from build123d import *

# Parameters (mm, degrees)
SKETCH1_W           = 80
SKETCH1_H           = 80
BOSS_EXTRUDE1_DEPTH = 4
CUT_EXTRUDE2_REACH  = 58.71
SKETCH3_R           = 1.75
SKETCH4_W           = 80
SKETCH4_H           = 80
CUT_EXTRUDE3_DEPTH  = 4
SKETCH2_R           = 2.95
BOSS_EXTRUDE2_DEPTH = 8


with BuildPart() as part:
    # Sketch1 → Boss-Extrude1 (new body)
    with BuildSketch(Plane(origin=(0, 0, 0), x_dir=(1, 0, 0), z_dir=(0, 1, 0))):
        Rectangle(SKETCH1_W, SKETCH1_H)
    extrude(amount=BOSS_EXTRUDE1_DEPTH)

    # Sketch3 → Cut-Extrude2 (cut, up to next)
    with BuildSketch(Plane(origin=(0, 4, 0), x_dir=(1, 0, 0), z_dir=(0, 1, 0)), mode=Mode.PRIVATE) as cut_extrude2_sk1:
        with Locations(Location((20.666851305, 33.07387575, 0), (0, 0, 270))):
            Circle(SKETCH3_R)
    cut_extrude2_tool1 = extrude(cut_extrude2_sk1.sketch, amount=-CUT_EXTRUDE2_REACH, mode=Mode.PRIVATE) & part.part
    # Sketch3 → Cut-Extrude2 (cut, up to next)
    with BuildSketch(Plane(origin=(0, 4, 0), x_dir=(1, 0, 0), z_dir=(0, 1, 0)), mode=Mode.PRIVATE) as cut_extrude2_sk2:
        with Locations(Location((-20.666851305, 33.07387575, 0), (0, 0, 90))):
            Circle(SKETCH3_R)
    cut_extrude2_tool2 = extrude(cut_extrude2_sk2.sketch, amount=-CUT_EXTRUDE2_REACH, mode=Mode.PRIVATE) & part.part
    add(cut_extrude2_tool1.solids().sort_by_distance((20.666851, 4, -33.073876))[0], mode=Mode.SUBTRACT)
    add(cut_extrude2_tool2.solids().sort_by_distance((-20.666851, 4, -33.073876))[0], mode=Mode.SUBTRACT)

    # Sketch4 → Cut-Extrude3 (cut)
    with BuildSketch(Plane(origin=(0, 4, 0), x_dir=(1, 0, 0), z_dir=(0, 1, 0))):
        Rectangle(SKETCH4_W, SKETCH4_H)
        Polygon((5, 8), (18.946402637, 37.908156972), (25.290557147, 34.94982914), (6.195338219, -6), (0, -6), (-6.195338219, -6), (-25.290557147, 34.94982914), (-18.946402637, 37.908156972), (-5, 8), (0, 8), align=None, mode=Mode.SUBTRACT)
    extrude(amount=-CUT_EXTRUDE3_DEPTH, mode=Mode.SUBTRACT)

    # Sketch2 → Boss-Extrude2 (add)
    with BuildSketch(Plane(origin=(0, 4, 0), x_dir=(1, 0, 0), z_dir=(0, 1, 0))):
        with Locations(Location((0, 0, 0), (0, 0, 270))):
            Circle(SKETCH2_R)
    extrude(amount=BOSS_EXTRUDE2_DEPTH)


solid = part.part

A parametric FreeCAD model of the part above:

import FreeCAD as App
import Part
import Sketcher
from FreeCAD import Vector
Q = App.Units.Quantity


def add_polygon(sketch, points):
    """Adds a closed chain of lines whose ends are joined by coincident constraints."""
    first, n = sketch.GeometryCount, len(points)
    for a, b in zip(points, points[1:] + points[:1]):
        sketch.addGeometry(Part.LineSegment(App.Vector(*a, 0), App.Vector(*b, 0)), False)
    for i in range(n):
        sketch.addConstraint(Sketcher.Constraint("Coincident", first + i, 2, first + (i + 1) % n, 1))

doc = App.newDocument("Part")
body = doc.addObject("PartDesign::Body", "Body")

sketch1 = body.newObject("Sketcher::SketchObject", "Sketch")
sketch1.AttachmentSupport = (doc.getObject("XZ_Plane"), [""])
sketch1.MapMode = "FlatFace"
add_polygon(sketch1, [(-40, -40), (-40, 40), (40, 40), (40, -40)])
sketch1.addConstraint(Sketcher.Constraint("Vertical", 0))
sketch1.addConstraint(Sketcher.Constraint("Horizontal", 1))
sketch1.addConstraint(Sketcher.Constraint("Vertical", 2))
sketch1.addConstraint(Sketcher.Constraint("Horizontal", 3))
sketch1.addConstraint(Sketcher.Constraint("Symmetric", 0, 2, 2, 2, -1, 1))
sketch1.addConstraint(Sketcher.Constraint("Equal", 3, 0))
sketch1.addConstraint(Sketcher.Constraint("DistanceX", 1, 1, 1, 2, 80.0))
pad1 = body.newObject("PartDesign::Pad", "Pad")
pad1.Profile = sketch1
pad1.Length = 4
pad1.Reversed = True

sketch2 = body.newObject("Sketcher::SketchObject", "Sketch001")
sketch2.AttachmentSupport = (doc.getObject("XZ_Plane"), [""])
sketch2.MapMode = "FlatFace"
sketch2.AttachmentOffset = App.Placement(Vector(0, 0, -4), App.Rotation())
sketch2.addGeometry(Part.Circle(Vector(20.666851, -33.073876, 0), Vector(0, 0, 1), 1.75), False)
sketch2.addConstraint(Sketcher.Constraint("Diameter", 0, 3.5))
sketch2.addConstraint(Sketcher.Constraint("DistanceX", -1, 1, 0, 3, 20.666851))
sketch2.addConstraint(Sketcher.Constraint("DistanceY", 0, 3, -1, 1, 33.073876))
pocket1 = body.newObject("PartDesign::Pocket", "Pocket")
pocket1.Profile = sketch2
pocket1.Type = "UpToFirst"
pocket1.Reversed = True

sketch3 = body.newObject("Sketcher::SketchObject", "Sketch002")
sketch3.AttachmentSupport = (doc.getObject("XZ_Plane"), [""])
sketch3.MapMode = "FlatFace"
sketch3.AttachmentOffset = App.Placement(Vector(0, 0, -4), App.Rotation())
sketch3.addGeometry(Part.Circle(Vector(-20.666851, -33.073876, 0), Vector(0, 0, 1), 1.75), False)
sketch3.addConstraint(Sketcher.Constraint("Diameter", 0, 3.5))
sketch3.addConstraint(Sketcher.Constraint("DistanceX", 0, 3, -1, 1, 20.666851))
sketch3.addConstraint(Sketcher.Constraint("DistanceY", 0, 3, -1, 1, 33.073876))
pocket2 = body.newObject("PartDesign::Pocket", "Pocket001")
pocket2.Profile = sketch3
pocket2.Type = "UpToFirst"
pocket2.Reversed = True

sketch4 = body.newObject("Sketcher::SketchObject", "Sketch003")
sketch4.AttachmentSupport = (doc.getObject("XZ_Plane"), [""])
sketch4.MapMode = "FlatFace"
sketch4.AttachmentOffset = App.Placement(Vector(0, 0, -4), App.Rotation())
add_polygon(sketch4, [(-40, -40), (-40, 40), (40, 40), (40, -40)])
add_polygon(sketch4, [(-5, -8), (5, -8), (18.946403, -37.908157), (25.290557, -34.949829), (6.195338, 6), (-6.195338, 6), (-25.290557, -34.949829), (-18.946403, -37.908157)])
sketch4.addConstraint(Sketcher.Constraint("Vertical", 0))
sketch4.addConstraint(Sketcher.Constraint("Horizontal", 1))
sketch4.addConstraint(Sketcher.Constraint("Vertical", 2))
sketch4.addConstraint(Sketcher.Constraint("Horizontal", 3))
sketch4.addConstraint(Sketcher.Constraint("Horizontal", 4))
sketch4.addConstraint(Sketcher.Constraint("Horizontal", 8))
sketch4.addConstraint(Sketcher.Constraint("Symmetric", 0, 2, 2, 2, -1, 1))
sketch4.addConstraint(Sketcher.Constraint("Symmetric", 6, 2, 9, 2, -2))
sketch4.addConstraint(Sketcher.Constraint("Symmetric", 5, 2, 10, 2, -2))
sketch4.addConstraint(Sketcher.Constraint("Perpendicular", 5, 6))
sketch4.addConstraint(Sketcher.Constraint("Perpendicular", 6, 7))
sketch4.addConstraint(Sketcher.Constraint("Perpendicular", 9, 10))
sketch4.addConstraint(Sketcher.Constraint("Perpendicular", 10, 11))
sketch4.addConstraint(Sketcher.Constraint("Equal", 3, 0))
sketch4.addConstraint(Sketcher.Constraint("DistanceX", 1, 1, 1, 2, 80.0))
sketch4.addConstraint(Sketcher.Constraint("DistanceX", 4, 1, 4, 2, 10.0))
sketch4.addConstraint(Sketcher.Constraint("Angle", 5, Q("-65 deg")))
sketch4.addConstraint(Sketcher.Constraint("Distance", 5, 33.0))
sketch4.addConstraint(Sketcher.Constraint("Distance", 6, 7.0))
sketch4.addConstraint(Sketcher.Constraint("DistanceY", 4, 2, -1, 1, 8.0))
sketch4.addConstraint(Sketcher.Constraint("DistanceY", -1, 1, 7, 2, 6.0))
pocket3 = body.newObject("PartDesign::Pocket", "Pocket002")
pocket3.Profile = sketch4
pocket3.Length = 4
pocket3.Reversed = True

sketch5 = body.newObject("Sketcher::SketchObject", "Sketch004")
sketch5.AttachmentSupport = (doc.getObject("XZ_Plane"), [""])
sketch5.MapMode = "FlatFace"
sketch5.AttachmentOffset = App.Placement(Vector(0, 0, -4), App.Rotation())
sketch5.addGeometry(Part.Circle(Vector(0, 0, 0), Vector(0, 0, 1), 2.95), False)
sketch5.addConstraint(Sketcher.Constraint("Coincident", 0, 3, -1, 1))
sketch5.addConstraint(Sketcher.Constraint("Diameter", 0, 5.9))
pad2 = body.newObject("PartDesign::Pad", "Pad001")
pad2.Profile = sketch5
pad2.Length = 8
pad2.Reversed = True

doc.recompute()
